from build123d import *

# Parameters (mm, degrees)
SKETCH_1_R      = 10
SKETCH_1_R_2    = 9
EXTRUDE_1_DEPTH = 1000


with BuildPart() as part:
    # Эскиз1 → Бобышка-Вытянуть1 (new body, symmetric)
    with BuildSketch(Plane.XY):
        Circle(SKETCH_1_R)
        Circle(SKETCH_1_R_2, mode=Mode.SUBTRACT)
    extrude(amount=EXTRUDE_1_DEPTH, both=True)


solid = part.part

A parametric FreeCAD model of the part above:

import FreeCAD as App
import Part
import Sketcher
from FreeCAD import Vector

doc = App.newDocument("Part")
body = doc.addObject("PartDesign::Body", "Body")

# Sketch on XY plane
sketch1 = body.newObject("Sketcher::SketchObject", "Sketch")
sketch1.AttachmentSupport = (doc.getObject("XY_Plane"), [""])
sketch1.MapMode = "FlatFace"
sketch1.addGeometry(Part.Circle(Vector(0, 0, 0), Vector(0, 0, 1), 10), False)
sketch1.addGeometry(Part.Circle(Vector(0, 0, 0), Vector(0, 0, 1), 9), False)
sketch1.addConstraint(Sketcher.Constraint("Coincident", 0, 3, -1, 1))
sketch1.addConstraint(Sketcher.Constraint("Coincident", 1, 3, -1, 1))
sketch1.addConstraint(Sketcher.Constraint("Diameter", 0, 20.0))
sketch1.addConstraint(Sketcher.Constraint("Diameter", 1, 18.0))
pad1 = body.newObject("PartDesign::Pad", "Pad")
pad1.Profile = sketch1
pad1.Length = 2000
pad1.Midplane = True

doc.recompute()
